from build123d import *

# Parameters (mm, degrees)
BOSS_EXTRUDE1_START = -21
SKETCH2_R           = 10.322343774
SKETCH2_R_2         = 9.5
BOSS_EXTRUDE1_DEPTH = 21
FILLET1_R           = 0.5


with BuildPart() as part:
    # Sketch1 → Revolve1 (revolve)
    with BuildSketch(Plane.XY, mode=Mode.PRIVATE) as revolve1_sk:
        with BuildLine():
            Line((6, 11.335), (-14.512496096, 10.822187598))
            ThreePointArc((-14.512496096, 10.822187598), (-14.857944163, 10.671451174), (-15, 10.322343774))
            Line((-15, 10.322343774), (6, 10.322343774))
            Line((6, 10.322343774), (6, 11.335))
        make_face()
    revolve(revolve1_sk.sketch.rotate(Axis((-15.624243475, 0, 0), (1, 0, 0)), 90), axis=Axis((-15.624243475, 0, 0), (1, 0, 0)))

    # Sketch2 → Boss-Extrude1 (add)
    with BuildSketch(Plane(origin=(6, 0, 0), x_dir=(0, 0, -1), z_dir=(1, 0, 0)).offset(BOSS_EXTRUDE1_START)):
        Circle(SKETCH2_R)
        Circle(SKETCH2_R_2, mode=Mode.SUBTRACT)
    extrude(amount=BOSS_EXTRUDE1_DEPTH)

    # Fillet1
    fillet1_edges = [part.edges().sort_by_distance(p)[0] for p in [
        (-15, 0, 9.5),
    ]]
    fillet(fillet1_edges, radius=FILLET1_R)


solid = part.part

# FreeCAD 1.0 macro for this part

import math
import FreeCAD as App
import Part
import Sketcher
Q = App.Units.Quantity


def edges_at(feature, points):
    """Names of the edges that pass closest to the given points."""
    edges = feature.Shape.Edges
    near = lambda p: min(range(len(edges)), key=lambda i: edges[i].distToShape(Part.Vertex(*p))[0])
    return sorted({f"Edge{near(p) + 1}" for p in points})

doc = App.newDocument("Part")
body = doc.addObject("PartDesign::Body", "Body")

# Sketch on XY plane
sketch1 = doc.addObject("Sketcher::SketchObject", "Sketch")
body.addObject(sketch1)
sketch1.AttachmentSupport = (doc.XY_Plane, [""])
sketch1.MapMode = "FlatFace"
sketch1.addGeometry([
    Part.LineSegment(App.Vector(6, 11.3, 0), App.Vector(-14.5, 10.8, 0)),
    Part.ArcOfCircle(Part.Circle(App.Vector(-14.5, 10.3, 0), App.Vector(0, 0, 1), 0.5), math.radians(91), math.radians(180)),
    Part.LineSegment(App.Vector(-15, 10.3, 0), App.Vector(6, 10.3, 0)),
    Part.LineSegment(App.Vector(6, 10.3, 0), App.Vector(6, 11.3, 0)),
], False)
sketch1.addConstraint([
    Sketcher.Constraint("Tangent", 0, 2, 1, 1),
    Sketcher.Constraint("Coincident", 1, 2, 2, 1),
    Sketcher.Constraint("Coincident", 2, 2, 3, 1),
    Sketcher.Constraint("Coincident", 3, 2, 0, 1),
    Sketcher.Constraint("Horizontal", 2),
    Sketcher.Constraint("Vertical", 3),
    Sketcher.Constraint("Radius", 1, Q("0.5 mm")),
    Sketcher.Constraint("DistanceX", 2, 1, 2, 2, Q("21 mm")),
    Sketcher.Constraint("DistanceX", 1, 2, -1, 1, Q("15 mm")),
    Sketcher.Constraint("DistanceY", -1, 1, 3, 2, Q("11.335 mm")),
    Sketcher.Constraint("DistanceY", 3, 1, 3, 2, Q("1.012656 mm")),
    Sketcher.Constraint("Distance", 0, Q("20.518905 mm")),
])
revolution = doc.addObject("PartDesign::Revolution", "Revolution")
body.addObject(revolution)
revolution.Profile = sketch1
revolution.ReferenceAxis = (sketch1, ["H_Axis"])
revolution.Angle = 360

# Sketch on YZ plane
sketch2 = doc.addObject("Sketcher::SketchObject", "Sketch001")
body.addObject(sketch2)
sketch2.AttachmentSupport = (doc.YZ_Plane, [""])
sketch2.MapMode = "FlatFace"
sketch2.AttachmentOffset = App.Placement(App.Vector(0, 0, -15), App.Rotation())
sketch2.addGeometry([
    Part.Circle(App.Vector(0, 0, 0), App.Vector(0, 0, 1), 10),
    Part.Circle(App.Vector(0, 0, 0), App.Vector(0, 0, 1), 10),
], False)
sketch2.addConstraint([
    Sketcher.Constraint("Coincident", 0, 3, -1, 1),
    Sketcher.Constraint("Coincident", 1, 3, -1, 1),
    Sketcher.Constraint("Diameter", 1, Q("19 mm")),
    Sketcher.Constraint("Diameter", 0, Q("20.644688 mm")),
])
pad1 = doc.addObject("PartDesign::Pad", "Pad")
body.addObject(pad1)
pad1.Profile = sketch2
pad1.Length = 21
doc.recompute()

fillet = doc.addObject("PartDesign::Fillet", "Fillet")
body.addObject(fillet)
fillet.Base = (pad1, edges_at(pad1, [(-15, 0, 9.5)]))
fillet.Radius = 0.5

doc.recompute()
